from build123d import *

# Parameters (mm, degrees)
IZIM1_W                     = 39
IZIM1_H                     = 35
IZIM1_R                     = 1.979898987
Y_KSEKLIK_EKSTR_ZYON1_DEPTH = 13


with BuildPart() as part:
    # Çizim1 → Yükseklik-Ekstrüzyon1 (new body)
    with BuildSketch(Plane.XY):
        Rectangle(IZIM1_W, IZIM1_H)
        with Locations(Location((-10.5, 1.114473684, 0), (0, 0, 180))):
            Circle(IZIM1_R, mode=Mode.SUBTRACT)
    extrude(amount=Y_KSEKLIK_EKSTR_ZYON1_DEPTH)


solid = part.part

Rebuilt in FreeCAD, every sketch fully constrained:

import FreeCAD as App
import Part
import Sketcher
Q = App.Units.Quantity

doc = App.newDocument("Part")
params = doc.addObject("Spreadsheet::Sheet", "Params")
for row, (alias, value) in enumerate([
    ("sketch1_width", "39 mm"),
    ("sketch1_height", "35 mm"),
    ("pad1_length", "13 mm"),
], start=1):
    params.set(f"A{row}", alias)
    params.set(f"B{row}", "=" + value)
    params.setAlias(f"B{row}", alias)

body = doc.addObject("PartDesign::Body", "Body")

# Sketch on XY plane
sketch1 = body.newObject("Sketcher::SketchObject", "Sketch")
sketch1.AttachmentSupport = (doc.getObject("XY_Plane"), [""])
sketch1.MapMode = "FlatFace"
sketch1.addGeometry([
    Part.LineSegment(App.Vector(-19.5, 17.5, 0), App.Vector(-19.5, -17.5, 0)),  # 0
    Part.LineSegment(App.Vector(-19.5, -17.5, 0), App.Vector(19.5, -17.5, 0)),  # 1
    Part.LineSegment(App.Vector(19.5, -17.5, 0), App.Vector(19.5, 17.5, 0)),  # 2
    Part.LineSegment(App.Vector(19.5, 17.5, 0), App.Vector(-19.5, 17.5, 0)),  # 3
    Part.Circle(App.Vector(-10.5, 1.1, 0), App.Vector(0, 0, 1), 2),  # 4
], False)
sketch1.addConstraint([
    Sketcher.Constraint("Coincident", 0, 2, 1, 1),
    Sketcher.Constraint("Coincident", 1, 2, 2, 1),
    Sketcher.Constraint("Coincident", 2, 2, 3, 1),
    Sketcher.Constraint("Coincident", 3, 2, 0, 1),
    Sketcher.Constraint("Vertical", 0),
    Sketcher.Constraint("Horizontal", 1),
    Sketcher.Constraint("Vertical", 2),
    Sketcher.Constraint("Horizontal", 3),
    Sketcher.Constraint("Symmetric", 0, 2, 2, 2, -1, 1),
    Sketcher.Constraint("DistanceX", 1, 1, 1, 2, Q("39 mm")),
    Sketcher.Constraint("DistanceY", 0, 2, 0, 1, Q("35 mm")),
    Sketcher.Constraint("DistanceX", 0, 2, 4, 3, Q("9 mm")),
    Sketcher.Constraint("Diameter", 4, Q("3.959798 mm")),
    Sketcher.Constraint("DistanceY", -1, 1, 4, 3, Q("1.114474 mm")),
])
sketch1.setExpression("Constraints[9]", "Params.sketch1_width")
sketch1.setExpression("Constraints[10]", "Params.sketch1_height")
pad1 = body.newObject("PartDesign::Pad", "Pad")
pad1.Profile = sketch1
pad1.setExpression("Length", "Params.pad1_length")

doc.recompute()
